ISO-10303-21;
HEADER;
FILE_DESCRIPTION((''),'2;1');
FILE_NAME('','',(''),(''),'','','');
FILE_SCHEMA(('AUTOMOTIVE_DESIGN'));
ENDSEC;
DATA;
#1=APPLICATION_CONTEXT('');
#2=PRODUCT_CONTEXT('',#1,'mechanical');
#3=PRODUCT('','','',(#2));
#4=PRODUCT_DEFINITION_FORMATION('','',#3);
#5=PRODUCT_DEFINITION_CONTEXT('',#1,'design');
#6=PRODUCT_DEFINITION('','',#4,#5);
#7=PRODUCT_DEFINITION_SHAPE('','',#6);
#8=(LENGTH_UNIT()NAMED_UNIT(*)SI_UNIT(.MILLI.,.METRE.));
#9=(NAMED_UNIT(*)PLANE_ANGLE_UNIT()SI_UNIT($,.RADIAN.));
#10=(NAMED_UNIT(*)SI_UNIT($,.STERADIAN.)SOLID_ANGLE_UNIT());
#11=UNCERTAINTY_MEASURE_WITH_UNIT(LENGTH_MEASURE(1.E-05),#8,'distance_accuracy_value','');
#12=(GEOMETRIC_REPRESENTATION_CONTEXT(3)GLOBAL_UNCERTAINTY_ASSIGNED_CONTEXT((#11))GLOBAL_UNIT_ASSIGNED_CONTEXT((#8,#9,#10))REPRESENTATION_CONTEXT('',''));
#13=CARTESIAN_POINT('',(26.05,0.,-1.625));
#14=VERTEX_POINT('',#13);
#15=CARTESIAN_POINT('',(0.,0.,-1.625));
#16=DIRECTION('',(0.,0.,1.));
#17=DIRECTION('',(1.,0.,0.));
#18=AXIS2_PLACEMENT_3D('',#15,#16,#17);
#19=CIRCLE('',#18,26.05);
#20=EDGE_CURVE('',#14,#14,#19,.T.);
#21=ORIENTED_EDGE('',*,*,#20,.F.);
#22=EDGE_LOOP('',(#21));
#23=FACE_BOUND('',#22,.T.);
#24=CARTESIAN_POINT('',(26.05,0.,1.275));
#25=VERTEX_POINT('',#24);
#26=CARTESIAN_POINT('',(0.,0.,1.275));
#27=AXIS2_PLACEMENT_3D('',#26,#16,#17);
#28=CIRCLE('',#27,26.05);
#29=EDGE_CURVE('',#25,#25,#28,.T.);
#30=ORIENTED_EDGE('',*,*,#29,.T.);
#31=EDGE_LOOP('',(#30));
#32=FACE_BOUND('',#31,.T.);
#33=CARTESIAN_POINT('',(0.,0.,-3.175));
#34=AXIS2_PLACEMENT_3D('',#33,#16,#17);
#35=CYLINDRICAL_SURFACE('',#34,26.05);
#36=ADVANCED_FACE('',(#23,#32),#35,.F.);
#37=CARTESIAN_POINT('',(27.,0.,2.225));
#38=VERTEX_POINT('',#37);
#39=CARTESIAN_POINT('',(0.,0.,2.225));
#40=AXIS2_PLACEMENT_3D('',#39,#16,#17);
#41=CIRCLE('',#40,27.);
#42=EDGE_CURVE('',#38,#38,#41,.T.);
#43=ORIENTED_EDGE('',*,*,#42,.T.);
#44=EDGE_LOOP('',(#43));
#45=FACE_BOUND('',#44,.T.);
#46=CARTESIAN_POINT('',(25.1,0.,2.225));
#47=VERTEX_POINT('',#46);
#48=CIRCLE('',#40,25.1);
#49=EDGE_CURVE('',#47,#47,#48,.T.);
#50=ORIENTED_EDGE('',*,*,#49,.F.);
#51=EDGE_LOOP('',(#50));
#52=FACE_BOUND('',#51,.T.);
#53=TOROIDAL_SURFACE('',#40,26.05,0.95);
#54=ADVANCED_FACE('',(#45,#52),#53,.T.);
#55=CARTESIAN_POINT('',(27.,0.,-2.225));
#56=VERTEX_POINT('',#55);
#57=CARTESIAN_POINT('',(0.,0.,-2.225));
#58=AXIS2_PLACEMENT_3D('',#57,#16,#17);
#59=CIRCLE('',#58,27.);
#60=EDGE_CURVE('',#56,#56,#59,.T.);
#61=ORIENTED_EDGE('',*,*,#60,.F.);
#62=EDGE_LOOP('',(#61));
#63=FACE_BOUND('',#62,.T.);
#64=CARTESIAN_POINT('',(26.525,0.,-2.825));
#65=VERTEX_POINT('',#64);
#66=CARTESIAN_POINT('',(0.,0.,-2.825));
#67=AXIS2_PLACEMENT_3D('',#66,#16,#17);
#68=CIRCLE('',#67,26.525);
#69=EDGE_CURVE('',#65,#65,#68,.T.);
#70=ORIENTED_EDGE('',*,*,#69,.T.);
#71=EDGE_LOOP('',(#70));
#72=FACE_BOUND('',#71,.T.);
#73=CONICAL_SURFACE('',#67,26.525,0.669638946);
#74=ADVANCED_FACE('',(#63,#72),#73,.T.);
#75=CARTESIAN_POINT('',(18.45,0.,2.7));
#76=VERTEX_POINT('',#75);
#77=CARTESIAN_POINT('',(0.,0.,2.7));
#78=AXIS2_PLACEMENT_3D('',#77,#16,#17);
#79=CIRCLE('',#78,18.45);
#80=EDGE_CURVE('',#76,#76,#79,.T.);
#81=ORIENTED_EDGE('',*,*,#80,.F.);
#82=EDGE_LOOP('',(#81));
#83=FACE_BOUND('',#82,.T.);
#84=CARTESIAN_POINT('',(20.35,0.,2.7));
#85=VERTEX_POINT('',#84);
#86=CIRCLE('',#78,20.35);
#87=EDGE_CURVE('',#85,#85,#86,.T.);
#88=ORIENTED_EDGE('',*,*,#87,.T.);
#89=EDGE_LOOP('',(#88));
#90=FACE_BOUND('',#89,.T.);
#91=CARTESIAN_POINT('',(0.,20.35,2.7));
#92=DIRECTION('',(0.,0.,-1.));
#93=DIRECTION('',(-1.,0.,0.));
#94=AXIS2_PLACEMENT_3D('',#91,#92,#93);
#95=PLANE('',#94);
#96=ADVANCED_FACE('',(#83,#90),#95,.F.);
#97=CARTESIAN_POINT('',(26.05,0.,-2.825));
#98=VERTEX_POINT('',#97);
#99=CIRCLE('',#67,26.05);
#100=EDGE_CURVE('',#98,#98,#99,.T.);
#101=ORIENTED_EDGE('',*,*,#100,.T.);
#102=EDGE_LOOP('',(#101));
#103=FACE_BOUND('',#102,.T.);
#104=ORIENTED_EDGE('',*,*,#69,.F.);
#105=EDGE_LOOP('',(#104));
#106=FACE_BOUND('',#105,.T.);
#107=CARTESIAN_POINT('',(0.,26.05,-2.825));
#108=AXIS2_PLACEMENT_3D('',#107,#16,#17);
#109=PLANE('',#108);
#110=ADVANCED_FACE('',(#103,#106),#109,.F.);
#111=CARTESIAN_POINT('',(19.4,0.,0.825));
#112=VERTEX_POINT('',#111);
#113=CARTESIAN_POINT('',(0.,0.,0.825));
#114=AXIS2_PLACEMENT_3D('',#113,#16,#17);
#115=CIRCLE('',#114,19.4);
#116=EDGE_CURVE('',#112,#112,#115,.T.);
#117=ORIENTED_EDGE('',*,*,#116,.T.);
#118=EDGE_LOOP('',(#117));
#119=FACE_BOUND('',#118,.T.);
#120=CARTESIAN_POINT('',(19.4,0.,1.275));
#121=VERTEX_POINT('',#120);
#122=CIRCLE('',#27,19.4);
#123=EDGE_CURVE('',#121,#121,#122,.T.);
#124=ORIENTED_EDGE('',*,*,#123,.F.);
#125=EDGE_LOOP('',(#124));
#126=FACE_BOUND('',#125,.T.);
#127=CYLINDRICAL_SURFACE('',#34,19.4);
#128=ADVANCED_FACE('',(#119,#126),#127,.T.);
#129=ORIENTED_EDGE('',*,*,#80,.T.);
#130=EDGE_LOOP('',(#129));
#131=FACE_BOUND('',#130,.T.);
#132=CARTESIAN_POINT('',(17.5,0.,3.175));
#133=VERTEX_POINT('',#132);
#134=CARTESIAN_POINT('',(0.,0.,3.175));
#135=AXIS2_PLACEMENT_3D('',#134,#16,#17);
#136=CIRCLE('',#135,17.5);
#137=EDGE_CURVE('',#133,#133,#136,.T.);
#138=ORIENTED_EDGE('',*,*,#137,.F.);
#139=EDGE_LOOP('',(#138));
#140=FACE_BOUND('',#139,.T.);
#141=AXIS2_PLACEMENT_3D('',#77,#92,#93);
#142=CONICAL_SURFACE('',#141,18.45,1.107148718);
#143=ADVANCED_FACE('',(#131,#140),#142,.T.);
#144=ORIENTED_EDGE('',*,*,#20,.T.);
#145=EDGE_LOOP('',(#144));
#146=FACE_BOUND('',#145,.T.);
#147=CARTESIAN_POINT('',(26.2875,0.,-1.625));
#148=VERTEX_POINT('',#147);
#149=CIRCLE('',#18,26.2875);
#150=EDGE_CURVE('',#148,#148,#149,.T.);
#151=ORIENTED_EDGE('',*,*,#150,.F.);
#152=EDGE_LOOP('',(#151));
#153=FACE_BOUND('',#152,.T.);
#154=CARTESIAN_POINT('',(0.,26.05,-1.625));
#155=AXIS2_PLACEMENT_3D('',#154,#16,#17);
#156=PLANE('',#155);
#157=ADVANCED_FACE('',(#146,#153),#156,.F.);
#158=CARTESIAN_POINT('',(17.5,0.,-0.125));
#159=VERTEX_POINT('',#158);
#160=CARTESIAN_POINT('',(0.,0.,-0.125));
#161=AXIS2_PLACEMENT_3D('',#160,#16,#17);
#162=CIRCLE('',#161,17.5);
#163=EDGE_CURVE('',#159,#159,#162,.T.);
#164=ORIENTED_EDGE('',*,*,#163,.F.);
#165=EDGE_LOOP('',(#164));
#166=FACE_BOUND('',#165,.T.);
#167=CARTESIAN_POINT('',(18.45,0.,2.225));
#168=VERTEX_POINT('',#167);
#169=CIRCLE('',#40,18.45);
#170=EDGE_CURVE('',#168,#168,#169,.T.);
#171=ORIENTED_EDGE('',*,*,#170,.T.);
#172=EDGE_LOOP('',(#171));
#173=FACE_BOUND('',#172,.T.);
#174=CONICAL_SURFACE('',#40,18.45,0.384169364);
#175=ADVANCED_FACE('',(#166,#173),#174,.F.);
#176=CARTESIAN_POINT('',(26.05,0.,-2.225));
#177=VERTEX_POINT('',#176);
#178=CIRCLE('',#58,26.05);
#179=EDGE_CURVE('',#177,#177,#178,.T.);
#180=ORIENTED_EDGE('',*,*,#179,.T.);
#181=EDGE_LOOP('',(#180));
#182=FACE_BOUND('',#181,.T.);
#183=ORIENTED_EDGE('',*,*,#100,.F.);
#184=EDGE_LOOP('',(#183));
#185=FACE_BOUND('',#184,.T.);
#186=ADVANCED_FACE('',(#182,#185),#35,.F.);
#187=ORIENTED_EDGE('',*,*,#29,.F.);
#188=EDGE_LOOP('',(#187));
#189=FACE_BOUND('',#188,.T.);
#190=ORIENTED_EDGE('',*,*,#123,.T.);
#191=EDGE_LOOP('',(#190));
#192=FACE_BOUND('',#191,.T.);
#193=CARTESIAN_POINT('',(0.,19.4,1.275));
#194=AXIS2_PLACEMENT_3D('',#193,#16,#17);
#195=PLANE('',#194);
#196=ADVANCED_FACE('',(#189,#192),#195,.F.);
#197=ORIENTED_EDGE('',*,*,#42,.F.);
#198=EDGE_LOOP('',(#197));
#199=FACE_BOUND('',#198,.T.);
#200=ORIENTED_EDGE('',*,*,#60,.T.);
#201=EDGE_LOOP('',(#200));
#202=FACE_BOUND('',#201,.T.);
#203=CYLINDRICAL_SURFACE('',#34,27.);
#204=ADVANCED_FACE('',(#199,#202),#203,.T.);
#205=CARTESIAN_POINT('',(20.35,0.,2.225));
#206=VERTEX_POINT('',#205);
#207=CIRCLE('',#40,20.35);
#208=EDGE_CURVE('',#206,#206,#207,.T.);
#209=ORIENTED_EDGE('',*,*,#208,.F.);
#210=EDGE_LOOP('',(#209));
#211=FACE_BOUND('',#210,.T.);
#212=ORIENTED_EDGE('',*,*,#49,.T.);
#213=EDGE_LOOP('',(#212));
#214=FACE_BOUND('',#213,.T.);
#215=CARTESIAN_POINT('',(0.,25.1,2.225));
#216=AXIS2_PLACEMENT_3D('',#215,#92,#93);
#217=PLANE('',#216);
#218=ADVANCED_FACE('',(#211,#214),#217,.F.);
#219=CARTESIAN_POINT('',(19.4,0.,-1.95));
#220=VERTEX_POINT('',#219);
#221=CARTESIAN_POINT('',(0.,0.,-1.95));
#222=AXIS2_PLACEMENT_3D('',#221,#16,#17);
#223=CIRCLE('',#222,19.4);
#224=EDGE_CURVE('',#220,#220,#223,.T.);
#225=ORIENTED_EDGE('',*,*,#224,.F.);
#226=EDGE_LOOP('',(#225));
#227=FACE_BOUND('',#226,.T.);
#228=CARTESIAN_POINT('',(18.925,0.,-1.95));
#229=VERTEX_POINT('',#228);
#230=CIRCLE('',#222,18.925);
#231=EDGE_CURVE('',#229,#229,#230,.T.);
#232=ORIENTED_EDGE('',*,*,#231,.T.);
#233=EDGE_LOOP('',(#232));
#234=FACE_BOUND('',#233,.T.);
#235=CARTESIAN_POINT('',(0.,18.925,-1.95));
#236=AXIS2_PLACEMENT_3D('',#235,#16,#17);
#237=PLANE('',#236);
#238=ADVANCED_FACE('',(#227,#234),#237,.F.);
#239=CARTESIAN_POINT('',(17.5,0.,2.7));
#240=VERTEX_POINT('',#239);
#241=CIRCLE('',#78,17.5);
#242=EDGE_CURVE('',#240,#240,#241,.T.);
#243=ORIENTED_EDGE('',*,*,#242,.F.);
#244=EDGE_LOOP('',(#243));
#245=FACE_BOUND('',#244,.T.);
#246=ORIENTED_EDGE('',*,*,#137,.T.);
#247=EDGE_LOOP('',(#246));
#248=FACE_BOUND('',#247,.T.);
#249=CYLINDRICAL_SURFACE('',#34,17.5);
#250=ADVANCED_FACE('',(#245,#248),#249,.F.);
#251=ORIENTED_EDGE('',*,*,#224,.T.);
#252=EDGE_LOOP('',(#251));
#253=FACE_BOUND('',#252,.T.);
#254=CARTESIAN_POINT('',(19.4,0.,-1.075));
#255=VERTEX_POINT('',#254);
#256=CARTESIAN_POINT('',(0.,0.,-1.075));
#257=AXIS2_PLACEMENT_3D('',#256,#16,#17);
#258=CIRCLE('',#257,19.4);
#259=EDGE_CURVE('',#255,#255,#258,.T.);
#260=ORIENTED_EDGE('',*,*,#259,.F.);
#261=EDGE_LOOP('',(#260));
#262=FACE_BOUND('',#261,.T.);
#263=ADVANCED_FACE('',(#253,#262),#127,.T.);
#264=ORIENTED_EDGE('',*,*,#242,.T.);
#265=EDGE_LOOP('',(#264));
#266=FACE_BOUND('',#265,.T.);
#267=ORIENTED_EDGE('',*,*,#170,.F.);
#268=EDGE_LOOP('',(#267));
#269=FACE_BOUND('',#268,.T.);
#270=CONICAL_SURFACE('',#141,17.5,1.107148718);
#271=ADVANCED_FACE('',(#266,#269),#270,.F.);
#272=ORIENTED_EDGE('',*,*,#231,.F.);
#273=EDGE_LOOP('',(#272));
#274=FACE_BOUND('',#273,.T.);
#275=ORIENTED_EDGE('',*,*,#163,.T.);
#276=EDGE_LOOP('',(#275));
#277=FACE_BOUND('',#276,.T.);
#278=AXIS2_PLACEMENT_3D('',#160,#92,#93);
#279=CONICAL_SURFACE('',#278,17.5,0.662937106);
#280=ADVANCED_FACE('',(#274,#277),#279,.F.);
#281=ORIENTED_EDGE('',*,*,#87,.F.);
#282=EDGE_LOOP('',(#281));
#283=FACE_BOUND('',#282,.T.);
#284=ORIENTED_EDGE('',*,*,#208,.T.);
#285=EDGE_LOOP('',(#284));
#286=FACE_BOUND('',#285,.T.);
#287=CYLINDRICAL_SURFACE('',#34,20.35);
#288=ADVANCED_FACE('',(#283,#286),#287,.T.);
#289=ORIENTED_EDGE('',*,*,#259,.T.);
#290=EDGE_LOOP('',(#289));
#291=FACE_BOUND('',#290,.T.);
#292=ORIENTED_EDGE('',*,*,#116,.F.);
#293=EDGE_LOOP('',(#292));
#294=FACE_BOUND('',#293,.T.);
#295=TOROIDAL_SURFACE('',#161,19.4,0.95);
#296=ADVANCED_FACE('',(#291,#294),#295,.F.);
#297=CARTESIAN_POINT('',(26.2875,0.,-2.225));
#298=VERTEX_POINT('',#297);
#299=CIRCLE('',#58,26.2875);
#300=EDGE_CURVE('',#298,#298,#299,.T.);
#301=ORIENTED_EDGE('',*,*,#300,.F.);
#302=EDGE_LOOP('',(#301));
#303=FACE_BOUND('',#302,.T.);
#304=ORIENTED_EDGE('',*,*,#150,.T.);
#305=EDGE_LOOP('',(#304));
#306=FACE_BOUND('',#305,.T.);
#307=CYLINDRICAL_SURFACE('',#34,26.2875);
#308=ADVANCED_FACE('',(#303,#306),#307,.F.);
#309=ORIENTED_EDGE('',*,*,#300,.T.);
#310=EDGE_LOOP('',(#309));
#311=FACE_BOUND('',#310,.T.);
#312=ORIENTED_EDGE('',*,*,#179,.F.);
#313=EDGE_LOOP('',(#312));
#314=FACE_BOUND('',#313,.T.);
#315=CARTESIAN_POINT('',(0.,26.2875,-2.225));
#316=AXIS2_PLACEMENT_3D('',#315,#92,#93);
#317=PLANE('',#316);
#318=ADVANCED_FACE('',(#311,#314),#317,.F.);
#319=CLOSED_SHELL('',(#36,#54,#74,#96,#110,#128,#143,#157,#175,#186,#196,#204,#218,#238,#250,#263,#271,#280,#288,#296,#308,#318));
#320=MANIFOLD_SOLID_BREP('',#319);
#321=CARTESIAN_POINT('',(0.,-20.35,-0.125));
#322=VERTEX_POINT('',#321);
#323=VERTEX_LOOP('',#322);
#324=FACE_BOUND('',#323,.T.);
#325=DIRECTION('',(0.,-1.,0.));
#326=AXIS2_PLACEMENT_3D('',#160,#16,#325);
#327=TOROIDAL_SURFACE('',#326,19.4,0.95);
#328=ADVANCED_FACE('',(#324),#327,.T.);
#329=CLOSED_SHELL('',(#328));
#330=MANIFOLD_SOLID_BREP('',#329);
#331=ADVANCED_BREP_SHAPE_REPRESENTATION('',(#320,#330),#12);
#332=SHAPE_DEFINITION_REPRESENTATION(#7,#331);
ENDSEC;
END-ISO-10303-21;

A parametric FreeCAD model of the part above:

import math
import FreeCAD as App
import Part
import Sketcher

doc = App.newDocument("Part")
params = doc.addObject("Spreadsheet::Sheet", "Params")
for row, (alias, value) in enumerate([
    ("sketch1_radius", "0.95 mm"),
    ("sketch1_width", "1.9 mm"),
    ("sketch1_height", "2.9 mm"),
    ("sketch1_height2", "0.6 mm"),
    ("sketch1_width2", "6.65 mm"),
    ("revolution_angle", "360 deg"),
    ("sketch2_diameter", "1.9 mm"),
    ("revolution2_angle", "360 deg"),
], start=1):
    params.set(f"A{row}", alias)
    params.set(f"B{row}", "=" + value)
    params.setAlias(f"B{row}", alias)

body = doc.addObject("PartDesign::Body", "Body")

# Sketch on YZ plane
sketch1 = body.newObject("Sketcher::SketchObject", "Sketch")
sketch1.AttachmentSupport = (doc.getObject("YZ_Plane"), [""])
sketch1.MapMode = "FlatFace"
sketch1.addGeometry([
    Part.LineSegment(App.Vector(17.5, 3.175, 0), App.Vector(17.5, 2.7, 0)),  # 0
    Part.LineSegment(App.Vector(17.5, 2.7, 0), App.Vector(18.45, 2.225, 0)),  # 1
    Part.LineSegment(App.Vector(18.45, 2.225, 0), App.Vector(17.5, -0.125, 0)),  # 2
    Part.LineSegment(App.Vector(17.5, -0.125, 0), App.Vector(18.925, -1.95, 0)),  # 3
    Part.LineSegment(App.Vector(18.925, -1.95, 0), App.Vector(19.4, -1.95, 0)),  # 4
    Part.LineSegment(App.Vector(19.4, -1.95, 0), App.Vector(19.4, -1.075, 0)),  # 5
    Part.ArcOfCircle(Part.Circle(App.Vector(19.4, -0.125, 0), App.Vector(0, 0, 1), 0.95), math.radians(90), math.radians(270)),  # 6
    Part.LineSegment(App.Vector(19.4, 0.825, 0), App.Vector(19.4, 1.275, 0)),  # 7
    Part.LineSegment(App.Vector(19.4, 1.275, 0), App.Vector(26.05, 1.275, 0)),  # 8
    Part.LineSegment(App.Vector(26.05, 1.275, 0), App.Vector(26.05, -1.625, 0)),  # 9
    Part.LineSegment(App.Vector(26.05, -1.625, 0), App.Vector(26.2875, -1.625, 0)),  # 10
    Part.LineSegment(App.Vector(26.2875, -1.625, 0), App.Vector(26.2875, -2.225, 0)),  # 11
    Part.LineSegment(App.Vector(26.2875, -2.225, 0), App.Vector(26.05, -2.225, 0)),  # 12
    Part.LineSegment(App.Vector(26.05, -2.225, 0), App.Vector(26.05, -2.825, 0)),  # 13
    Part.LineSegment(App.Vector(26.05, -2.825, 0), App.Vector(26.525, -2.825, 0)),  # 14
    Part.LineSegment(App.Vector(26.525, -2.825, 0), App.Vector(27, -2.225, 0)),  # 15
    Part.LineSegment(App.Vector(27, -2.225, 0), App.Vector(27, 2.225, 0)),  # 16
    Part.ArcOfCircle(Part.Circle(App.Vector(26.05, 2.225, 0), App.Vector(0, 0, 1), 0.95), math.radians(0), math.radians(180)),  # 17
    Part.LineSegment(App.Vector(25.1, 2.225, 0), App.Vector(20.35, 2.225, 0)),  # 18
    Part.LineSegment(App.Vector(20.35, 2.225, 0), App.Vector(20.35, 2.7, 0)),  # 19
    Part.LineSegment(App.Vector(20.35, 2.7, 0), App.Vector(18.45, 2.7, 0)),  # 20
    Part.LineSegment(App.Vector(18.45, 2.7, 0), App.Vector(17.5, 3.175, 0)),  # 21
], False)
sketch1.addConstraint([
    Sketcher.Constraint("Coincident", 0, 2, 1, 1),
    Sketcher.Constraint("Coincident", 1, 2, 2, 1),
    Sketcher.Constraint("Coincident", 2, 2, 3, 1),
    Sketcher.Constraint("Coincident", 3, 2, 4, 1),
    Sketcher.Constraint("Coincident", 4, 2, 5, 1),
    Sketcher.Constraint("Coincident", 5, 2, 6, 2),
    Sketcher.Constraint("Coincident", 6, 1, 7, 1),
    Sketcher.Constraint("Coincident", 7, 2, 8, 1),
    Sketcher.Constraint("Coincident", 8, 2, 9, 1),
    Sketcher.Constraint("Coincident", 9, 2, 10, 1),
    Sketcher.Constraint("Coincident", 10, 2, 11, 1),
    Sketcher.Constraint("Coincident", 11, 2, 12, 1),
    Sketcher.Constraint("Coincident", 12, 2, 13, 1),
    Sketcher.Constraint("Coincident", 13, 2, 14, 1),
    Sketcher.Constraint("Coincident", 14, 2, 15, 1),
    Sketcher.Constraint("Coincident", 15, 2, 16, 1),
    Sketcher.Constraint("Tangent", 16, 2, 17, 1),
    Sketcher.Constraint("Coincident", 17, 2, 18, 1),
    Sketcher.Constraint("Coincident", 18, 2, 19, 1),
    Sketcher.Constraint("Coincident", 19, 2, 20, 1),
    Sketcher.Constraint("Coincident", 20, 2, 21, 1),
    Sketcher.Constraint("Coincident", 21, 2, 0, 1),
    Sketcher.Constraint("Vertical", 0),
    Sketcher.Constraint("Horizontal", 4),
    Sketcher.Constraint("Vertical", 5),
    Sketcher.Constraint("Vertical", 7),
    Sketcher.Constraint("Horizontal", 8),
    Sketcher.Constraint("Vertical", 9),
    Sketcher.Constraint("Horizontal", 10),
    Sketcher.Constraint("Vertical", 11),
    Sketcher.Constraint("Horizontal", 12),
    Sketcher.Constraint("Vertical", 13),
    Sketcher.Constraint("Horizontal", 14),
    Sketcher.Constraint("Vertical", 16),
    Sketcher.Constraint("Horizontal", 18),
    Sketcher.Constraint("Vertical", 19),
    Sketcher.Constraint("Horizontal", 20),
    Sketcher.Constraint("Equal", 6, 17),
    Sketcher.Constraint("Parallel", 1, 21),
    Sketcher.Constraint("Horizontal", 17, 3, 1, 2),
    Sketcher.Constraint("Horizontal", 6, 3, 2, 2),
    Sketcher.Constraint("Horizontal", 12, 2, 15, 2),
    Sketcher.Constraint("Horizontal", 16, 2, 17, 2),
    Sketcher.Constraint("Horizontal", 0, 2, 19, 2),
    Sketcher.Constraint("Vertical", 0, 2, 2, 2),
    Sketcher.Constraint("Vertical", 6, 3, 4, 2),
    Sketcher.Constraint("Vertical", 5, 2, 6, 1),
    Sketcher.Constraint("Vertical", 17, 3, 8, 2),
    Sketcher.Constraint("Vertical", 9, 2, 12, 2),
    Sketcher.Constraint("Vertical", 1, 2, 20, 2),
    Sketcher.Constraint("Equal", 4, 14),
    Sketcher.Constraint("Equal", 14, 0),
    Sketcher.Constraint("Equal", 11, 13),
    Sketcher.Constraint("Radius", 6, 0.95),
    Sketcher.Constraint("DistanceX", 20, 2, 20, 1, 1.9),
    Sketcher.Constraint("DistanceY", 9, 2, 9, 1, 2.9),
    Sketcher.Constraint("DistanceY", 11, 2, 11, 1, 0.6),
    Sketcher.Constraint("DistanceX", -1, 1, 15, 2, 27.0),
    Sketcher.Constraint("DistanceX", 8, 1, 8, 2, 6.65),
    Sketcher.Constraint("DistanceX", 18, 2, 18, 1, 4.75),
    Sketcher.Constraint("DistanceY", 7, 1, 7, 2, 0.45),
    Sketcher.Constraint("DistanceY", 16, 1, 16, 2, 4.45),
    Sketcher.Constraint("DistanceX", -1, 1, 0, 2, 17.5),
    Sketcher.Constraint("DistanceY", -1, 1, 0, 2, 2.7),
    Sketcher.Constraint("DistanceY", 7, 2, 21, 2, 1.9),
    Sketcher.Constraint("DistanceY", 5, 1, 5, 2, 0.875),
    Sketcher.Constraint("DistanceX", 10, 1, 10, 2, 0.2375),
])
sketch1.setExpression("Constraints[53]", "Params.sketch1_radius")
sketch1.setExpression("Constraints[54]", "Params.sketch1_width")
sketch1.setExpression("Constraints[55]", "Params.sketch1_height")
sketch1.setExpression("Constraints[56]", "Params.sketch1_height2")
sketch1.setExpression("Constraints[58]", "Params.sketch1_width2")
revolution = body.newObject("PartDesign::Revolution", "Revolution")
revolution.Profile = sketch1
revolution.ReferenceAxis = (sketch1, ["V_Axis"])
revolution.setExpression("Angle", "Params.revolution_angle")
body2 = doc.addObject("PartDesign::Body", "Body001")

# Sketch on YZ plane
sketch2 = body2.newObject("Sketcher::SketchObject", "Sketch001")
sketch2.AttachmentSupport = (doc.getObject("YZ_Plane001"), [""])
sketch2.MapMode = "FlatFace"
sketch2.addGeometry(Part.Circle(App.Vector(19.4, -0.125, 0), App.Vector(0, 0, 1), 0.95), False)
sketch2.addConstraint([
    Sketcher.Constraint("Diameter", 0, 1.9),
    Sketcher.Constraint("DistanceX", -1, 1, 0, 3, 19.4),
    Sketcher.Constraint("DistanceY", 0, 3, -1, 1, 0.125),
])
sketch2.setExpression("Constraints[0]", "Params.sketch2_diameter")
revolution2 = body2.newObject("PartDesign::Revolution", "Revolution001")
revolution2.Profile = sketch2
revolution2.ReferenceAxis = (sketch2, ["V_Axis"])
revolution2.setExpression("Angle", "Params.revolution2_angle")

doc.recompute()
